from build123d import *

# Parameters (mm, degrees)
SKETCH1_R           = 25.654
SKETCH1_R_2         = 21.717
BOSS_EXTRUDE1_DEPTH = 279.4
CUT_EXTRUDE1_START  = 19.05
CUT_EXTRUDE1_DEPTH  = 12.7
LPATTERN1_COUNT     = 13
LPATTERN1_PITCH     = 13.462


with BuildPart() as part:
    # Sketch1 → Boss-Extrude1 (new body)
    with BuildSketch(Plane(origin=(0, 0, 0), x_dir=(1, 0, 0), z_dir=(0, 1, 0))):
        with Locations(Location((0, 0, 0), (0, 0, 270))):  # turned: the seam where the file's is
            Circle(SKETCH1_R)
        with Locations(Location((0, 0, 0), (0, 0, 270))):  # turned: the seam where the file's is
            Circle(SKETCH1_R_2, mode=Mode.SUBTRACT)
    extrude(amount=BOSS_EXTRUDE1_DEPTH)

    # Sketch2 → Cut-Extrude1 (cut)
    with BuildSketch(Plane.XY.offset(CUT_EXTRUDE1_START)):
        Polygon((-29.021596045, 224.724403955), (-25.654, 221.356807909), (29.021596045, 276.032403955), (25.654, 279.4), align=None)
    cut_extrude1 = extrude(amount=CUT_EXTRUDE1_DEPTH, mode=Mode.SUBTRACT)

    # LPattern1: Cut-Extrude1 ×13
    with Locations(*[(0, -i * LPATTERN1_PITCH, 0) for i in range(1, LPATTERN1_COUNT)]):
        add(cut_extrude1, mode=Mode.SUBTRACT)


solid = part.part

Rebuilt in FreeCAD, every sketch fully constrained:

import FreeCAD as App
import Part
import Sketcher

V = App.Vector
Q = App.Units.Quantity

doc = App.newDocument("Part")
body = doc.addObject("PartDesign::Body", "Body")

# Sketch on XZ plane
sketch1 = doc.addObject("Sketcher::SketchObject", "Sketch")
body.addObject(sketch1)
sketch1.AttachmentSupport = (doc.XZ_Plane, [""])
sketch1.MapMode = "FlatFace"
sketch1.addGeometry(Part.Circle(V(0, 0, 0), V(0, 0, 1), 26), False)
sketch1.addGeometry(Part.Circle(V(0, 0, 0), V(0, 0, 1), 22), False)
sketch1.addConstraint(Sketcher.Constraint("Coincident", 0, 3, -1, 1))
sketch1.addConstraint(Sketcher.Constraint("Coincident", 1, 3, -1, 1))
sketch1.addConstraint(Sketcher.Constraint("Diameter", 0, Q("2.02 in")))
sketch1.addConstraint(Sketcher.Constraint("Diameter", 1, Q("1.71 in")))
pad1 = doc.addObject("PartDesign::Pad", "Pad")
body.addObject(pad1)
pad1.Profile = sketch1
pad1.Length = Q("11 in")
pad1.Reversed = True

# Sketch on XY plane
sketch2 = doc.addObject("Sketcher::SketchObject", "Sketch001")
body.addObject(sketch2)
sketch2.AttachmentSupport = (doc.XY_Plane, [""])
sketch2.MapMode = "FlatFace"
sketch2.AttachmentOffset = App.Placement(V(0, 0, 0.75 * 25.4), App.Rotation())
sketch2.addGeometry(Part.LineSegment(V(-29, 224.7, 0), V(-25.7, 221.4, 0)), False)
sketch2.addGeometry(Part.LineSegment(V(-25.7, 221.4, 0), V(29, 276, 0)), False)
sketch2.addGeometry(Part.LineSegment(V(29, 276, 0), V(25.7, 279.4, 0)), False)
sketch2.addGeometry(Part.LineSegment(V(25.7, 279.4, 0), V(-29, 224.7, 0)), False)
sketch2.addConstraint(Sketcher.Constraint("Coincident", 0, 2, 1, 1))
sketch2.addConstraint(Sketcher.Constraint("Coincident", 1, 2, 2, 1))
sketch2.addConstraint(Sketcher.Constraint("Coincident", 2, 2, 3, 1))
sketch2.addConstraint(Sketcher.Constraint("Coincident", 3, 2, 0, 1))
sketch2.addConstraint(Sketcher.Constraint("Perpendicular", 0, 1))
sketch2.addConstraint(Sketcher.Constraint("Perpendicular", 1, 2))
sketch2.addConstraint(Sketcher.Constraint("Perpendicular", 2, 3))
sketch2.addConstraint(Sketcher.Constraint("DistanceY", -1, 1, 2, 2, Q("11 in")))
sketch2.addConstraint(Sketcher.Constraint("Angle", 0, Q("-45 deg")))
sketch2.addConstraint(Sketcher.Constraint("DistanceX", 0, 2, -1, 1, Q("1.01 in")))
sketch2.addConstraint(Sketcher.Constraint("DistanceX", -1, 1, 2, 2, Q("1.01 in")))
sketch2.addConstraint(Sketcher.Constraint("Distance", 0, Q("0.1875 in")))
pocket1 = doc.addObject("PartDesign::Pocket", "Pocket")
body.addObject(pocket1)
pocket1.Profile = sketch2
pocket1.Length = Q("0.5 in")
pocket1.Reversed = True
doc.recompute()

linearpattern = doc.addObject("PartDesign::LinearPattern", "LinearPattern")
body.addObject(linearpattern)
linearpattern.Originals = [pocket1]
linearpattern.Direction = (doc.Y_Axis, [""])
linearpattern.Mode = "offset"
linearpattern.Offset = Q("0.53 in")
linearpattern.Occurrences = 13
linearpattern.Reversed = True
body.Tip = linearpattern

doc.recompute()
